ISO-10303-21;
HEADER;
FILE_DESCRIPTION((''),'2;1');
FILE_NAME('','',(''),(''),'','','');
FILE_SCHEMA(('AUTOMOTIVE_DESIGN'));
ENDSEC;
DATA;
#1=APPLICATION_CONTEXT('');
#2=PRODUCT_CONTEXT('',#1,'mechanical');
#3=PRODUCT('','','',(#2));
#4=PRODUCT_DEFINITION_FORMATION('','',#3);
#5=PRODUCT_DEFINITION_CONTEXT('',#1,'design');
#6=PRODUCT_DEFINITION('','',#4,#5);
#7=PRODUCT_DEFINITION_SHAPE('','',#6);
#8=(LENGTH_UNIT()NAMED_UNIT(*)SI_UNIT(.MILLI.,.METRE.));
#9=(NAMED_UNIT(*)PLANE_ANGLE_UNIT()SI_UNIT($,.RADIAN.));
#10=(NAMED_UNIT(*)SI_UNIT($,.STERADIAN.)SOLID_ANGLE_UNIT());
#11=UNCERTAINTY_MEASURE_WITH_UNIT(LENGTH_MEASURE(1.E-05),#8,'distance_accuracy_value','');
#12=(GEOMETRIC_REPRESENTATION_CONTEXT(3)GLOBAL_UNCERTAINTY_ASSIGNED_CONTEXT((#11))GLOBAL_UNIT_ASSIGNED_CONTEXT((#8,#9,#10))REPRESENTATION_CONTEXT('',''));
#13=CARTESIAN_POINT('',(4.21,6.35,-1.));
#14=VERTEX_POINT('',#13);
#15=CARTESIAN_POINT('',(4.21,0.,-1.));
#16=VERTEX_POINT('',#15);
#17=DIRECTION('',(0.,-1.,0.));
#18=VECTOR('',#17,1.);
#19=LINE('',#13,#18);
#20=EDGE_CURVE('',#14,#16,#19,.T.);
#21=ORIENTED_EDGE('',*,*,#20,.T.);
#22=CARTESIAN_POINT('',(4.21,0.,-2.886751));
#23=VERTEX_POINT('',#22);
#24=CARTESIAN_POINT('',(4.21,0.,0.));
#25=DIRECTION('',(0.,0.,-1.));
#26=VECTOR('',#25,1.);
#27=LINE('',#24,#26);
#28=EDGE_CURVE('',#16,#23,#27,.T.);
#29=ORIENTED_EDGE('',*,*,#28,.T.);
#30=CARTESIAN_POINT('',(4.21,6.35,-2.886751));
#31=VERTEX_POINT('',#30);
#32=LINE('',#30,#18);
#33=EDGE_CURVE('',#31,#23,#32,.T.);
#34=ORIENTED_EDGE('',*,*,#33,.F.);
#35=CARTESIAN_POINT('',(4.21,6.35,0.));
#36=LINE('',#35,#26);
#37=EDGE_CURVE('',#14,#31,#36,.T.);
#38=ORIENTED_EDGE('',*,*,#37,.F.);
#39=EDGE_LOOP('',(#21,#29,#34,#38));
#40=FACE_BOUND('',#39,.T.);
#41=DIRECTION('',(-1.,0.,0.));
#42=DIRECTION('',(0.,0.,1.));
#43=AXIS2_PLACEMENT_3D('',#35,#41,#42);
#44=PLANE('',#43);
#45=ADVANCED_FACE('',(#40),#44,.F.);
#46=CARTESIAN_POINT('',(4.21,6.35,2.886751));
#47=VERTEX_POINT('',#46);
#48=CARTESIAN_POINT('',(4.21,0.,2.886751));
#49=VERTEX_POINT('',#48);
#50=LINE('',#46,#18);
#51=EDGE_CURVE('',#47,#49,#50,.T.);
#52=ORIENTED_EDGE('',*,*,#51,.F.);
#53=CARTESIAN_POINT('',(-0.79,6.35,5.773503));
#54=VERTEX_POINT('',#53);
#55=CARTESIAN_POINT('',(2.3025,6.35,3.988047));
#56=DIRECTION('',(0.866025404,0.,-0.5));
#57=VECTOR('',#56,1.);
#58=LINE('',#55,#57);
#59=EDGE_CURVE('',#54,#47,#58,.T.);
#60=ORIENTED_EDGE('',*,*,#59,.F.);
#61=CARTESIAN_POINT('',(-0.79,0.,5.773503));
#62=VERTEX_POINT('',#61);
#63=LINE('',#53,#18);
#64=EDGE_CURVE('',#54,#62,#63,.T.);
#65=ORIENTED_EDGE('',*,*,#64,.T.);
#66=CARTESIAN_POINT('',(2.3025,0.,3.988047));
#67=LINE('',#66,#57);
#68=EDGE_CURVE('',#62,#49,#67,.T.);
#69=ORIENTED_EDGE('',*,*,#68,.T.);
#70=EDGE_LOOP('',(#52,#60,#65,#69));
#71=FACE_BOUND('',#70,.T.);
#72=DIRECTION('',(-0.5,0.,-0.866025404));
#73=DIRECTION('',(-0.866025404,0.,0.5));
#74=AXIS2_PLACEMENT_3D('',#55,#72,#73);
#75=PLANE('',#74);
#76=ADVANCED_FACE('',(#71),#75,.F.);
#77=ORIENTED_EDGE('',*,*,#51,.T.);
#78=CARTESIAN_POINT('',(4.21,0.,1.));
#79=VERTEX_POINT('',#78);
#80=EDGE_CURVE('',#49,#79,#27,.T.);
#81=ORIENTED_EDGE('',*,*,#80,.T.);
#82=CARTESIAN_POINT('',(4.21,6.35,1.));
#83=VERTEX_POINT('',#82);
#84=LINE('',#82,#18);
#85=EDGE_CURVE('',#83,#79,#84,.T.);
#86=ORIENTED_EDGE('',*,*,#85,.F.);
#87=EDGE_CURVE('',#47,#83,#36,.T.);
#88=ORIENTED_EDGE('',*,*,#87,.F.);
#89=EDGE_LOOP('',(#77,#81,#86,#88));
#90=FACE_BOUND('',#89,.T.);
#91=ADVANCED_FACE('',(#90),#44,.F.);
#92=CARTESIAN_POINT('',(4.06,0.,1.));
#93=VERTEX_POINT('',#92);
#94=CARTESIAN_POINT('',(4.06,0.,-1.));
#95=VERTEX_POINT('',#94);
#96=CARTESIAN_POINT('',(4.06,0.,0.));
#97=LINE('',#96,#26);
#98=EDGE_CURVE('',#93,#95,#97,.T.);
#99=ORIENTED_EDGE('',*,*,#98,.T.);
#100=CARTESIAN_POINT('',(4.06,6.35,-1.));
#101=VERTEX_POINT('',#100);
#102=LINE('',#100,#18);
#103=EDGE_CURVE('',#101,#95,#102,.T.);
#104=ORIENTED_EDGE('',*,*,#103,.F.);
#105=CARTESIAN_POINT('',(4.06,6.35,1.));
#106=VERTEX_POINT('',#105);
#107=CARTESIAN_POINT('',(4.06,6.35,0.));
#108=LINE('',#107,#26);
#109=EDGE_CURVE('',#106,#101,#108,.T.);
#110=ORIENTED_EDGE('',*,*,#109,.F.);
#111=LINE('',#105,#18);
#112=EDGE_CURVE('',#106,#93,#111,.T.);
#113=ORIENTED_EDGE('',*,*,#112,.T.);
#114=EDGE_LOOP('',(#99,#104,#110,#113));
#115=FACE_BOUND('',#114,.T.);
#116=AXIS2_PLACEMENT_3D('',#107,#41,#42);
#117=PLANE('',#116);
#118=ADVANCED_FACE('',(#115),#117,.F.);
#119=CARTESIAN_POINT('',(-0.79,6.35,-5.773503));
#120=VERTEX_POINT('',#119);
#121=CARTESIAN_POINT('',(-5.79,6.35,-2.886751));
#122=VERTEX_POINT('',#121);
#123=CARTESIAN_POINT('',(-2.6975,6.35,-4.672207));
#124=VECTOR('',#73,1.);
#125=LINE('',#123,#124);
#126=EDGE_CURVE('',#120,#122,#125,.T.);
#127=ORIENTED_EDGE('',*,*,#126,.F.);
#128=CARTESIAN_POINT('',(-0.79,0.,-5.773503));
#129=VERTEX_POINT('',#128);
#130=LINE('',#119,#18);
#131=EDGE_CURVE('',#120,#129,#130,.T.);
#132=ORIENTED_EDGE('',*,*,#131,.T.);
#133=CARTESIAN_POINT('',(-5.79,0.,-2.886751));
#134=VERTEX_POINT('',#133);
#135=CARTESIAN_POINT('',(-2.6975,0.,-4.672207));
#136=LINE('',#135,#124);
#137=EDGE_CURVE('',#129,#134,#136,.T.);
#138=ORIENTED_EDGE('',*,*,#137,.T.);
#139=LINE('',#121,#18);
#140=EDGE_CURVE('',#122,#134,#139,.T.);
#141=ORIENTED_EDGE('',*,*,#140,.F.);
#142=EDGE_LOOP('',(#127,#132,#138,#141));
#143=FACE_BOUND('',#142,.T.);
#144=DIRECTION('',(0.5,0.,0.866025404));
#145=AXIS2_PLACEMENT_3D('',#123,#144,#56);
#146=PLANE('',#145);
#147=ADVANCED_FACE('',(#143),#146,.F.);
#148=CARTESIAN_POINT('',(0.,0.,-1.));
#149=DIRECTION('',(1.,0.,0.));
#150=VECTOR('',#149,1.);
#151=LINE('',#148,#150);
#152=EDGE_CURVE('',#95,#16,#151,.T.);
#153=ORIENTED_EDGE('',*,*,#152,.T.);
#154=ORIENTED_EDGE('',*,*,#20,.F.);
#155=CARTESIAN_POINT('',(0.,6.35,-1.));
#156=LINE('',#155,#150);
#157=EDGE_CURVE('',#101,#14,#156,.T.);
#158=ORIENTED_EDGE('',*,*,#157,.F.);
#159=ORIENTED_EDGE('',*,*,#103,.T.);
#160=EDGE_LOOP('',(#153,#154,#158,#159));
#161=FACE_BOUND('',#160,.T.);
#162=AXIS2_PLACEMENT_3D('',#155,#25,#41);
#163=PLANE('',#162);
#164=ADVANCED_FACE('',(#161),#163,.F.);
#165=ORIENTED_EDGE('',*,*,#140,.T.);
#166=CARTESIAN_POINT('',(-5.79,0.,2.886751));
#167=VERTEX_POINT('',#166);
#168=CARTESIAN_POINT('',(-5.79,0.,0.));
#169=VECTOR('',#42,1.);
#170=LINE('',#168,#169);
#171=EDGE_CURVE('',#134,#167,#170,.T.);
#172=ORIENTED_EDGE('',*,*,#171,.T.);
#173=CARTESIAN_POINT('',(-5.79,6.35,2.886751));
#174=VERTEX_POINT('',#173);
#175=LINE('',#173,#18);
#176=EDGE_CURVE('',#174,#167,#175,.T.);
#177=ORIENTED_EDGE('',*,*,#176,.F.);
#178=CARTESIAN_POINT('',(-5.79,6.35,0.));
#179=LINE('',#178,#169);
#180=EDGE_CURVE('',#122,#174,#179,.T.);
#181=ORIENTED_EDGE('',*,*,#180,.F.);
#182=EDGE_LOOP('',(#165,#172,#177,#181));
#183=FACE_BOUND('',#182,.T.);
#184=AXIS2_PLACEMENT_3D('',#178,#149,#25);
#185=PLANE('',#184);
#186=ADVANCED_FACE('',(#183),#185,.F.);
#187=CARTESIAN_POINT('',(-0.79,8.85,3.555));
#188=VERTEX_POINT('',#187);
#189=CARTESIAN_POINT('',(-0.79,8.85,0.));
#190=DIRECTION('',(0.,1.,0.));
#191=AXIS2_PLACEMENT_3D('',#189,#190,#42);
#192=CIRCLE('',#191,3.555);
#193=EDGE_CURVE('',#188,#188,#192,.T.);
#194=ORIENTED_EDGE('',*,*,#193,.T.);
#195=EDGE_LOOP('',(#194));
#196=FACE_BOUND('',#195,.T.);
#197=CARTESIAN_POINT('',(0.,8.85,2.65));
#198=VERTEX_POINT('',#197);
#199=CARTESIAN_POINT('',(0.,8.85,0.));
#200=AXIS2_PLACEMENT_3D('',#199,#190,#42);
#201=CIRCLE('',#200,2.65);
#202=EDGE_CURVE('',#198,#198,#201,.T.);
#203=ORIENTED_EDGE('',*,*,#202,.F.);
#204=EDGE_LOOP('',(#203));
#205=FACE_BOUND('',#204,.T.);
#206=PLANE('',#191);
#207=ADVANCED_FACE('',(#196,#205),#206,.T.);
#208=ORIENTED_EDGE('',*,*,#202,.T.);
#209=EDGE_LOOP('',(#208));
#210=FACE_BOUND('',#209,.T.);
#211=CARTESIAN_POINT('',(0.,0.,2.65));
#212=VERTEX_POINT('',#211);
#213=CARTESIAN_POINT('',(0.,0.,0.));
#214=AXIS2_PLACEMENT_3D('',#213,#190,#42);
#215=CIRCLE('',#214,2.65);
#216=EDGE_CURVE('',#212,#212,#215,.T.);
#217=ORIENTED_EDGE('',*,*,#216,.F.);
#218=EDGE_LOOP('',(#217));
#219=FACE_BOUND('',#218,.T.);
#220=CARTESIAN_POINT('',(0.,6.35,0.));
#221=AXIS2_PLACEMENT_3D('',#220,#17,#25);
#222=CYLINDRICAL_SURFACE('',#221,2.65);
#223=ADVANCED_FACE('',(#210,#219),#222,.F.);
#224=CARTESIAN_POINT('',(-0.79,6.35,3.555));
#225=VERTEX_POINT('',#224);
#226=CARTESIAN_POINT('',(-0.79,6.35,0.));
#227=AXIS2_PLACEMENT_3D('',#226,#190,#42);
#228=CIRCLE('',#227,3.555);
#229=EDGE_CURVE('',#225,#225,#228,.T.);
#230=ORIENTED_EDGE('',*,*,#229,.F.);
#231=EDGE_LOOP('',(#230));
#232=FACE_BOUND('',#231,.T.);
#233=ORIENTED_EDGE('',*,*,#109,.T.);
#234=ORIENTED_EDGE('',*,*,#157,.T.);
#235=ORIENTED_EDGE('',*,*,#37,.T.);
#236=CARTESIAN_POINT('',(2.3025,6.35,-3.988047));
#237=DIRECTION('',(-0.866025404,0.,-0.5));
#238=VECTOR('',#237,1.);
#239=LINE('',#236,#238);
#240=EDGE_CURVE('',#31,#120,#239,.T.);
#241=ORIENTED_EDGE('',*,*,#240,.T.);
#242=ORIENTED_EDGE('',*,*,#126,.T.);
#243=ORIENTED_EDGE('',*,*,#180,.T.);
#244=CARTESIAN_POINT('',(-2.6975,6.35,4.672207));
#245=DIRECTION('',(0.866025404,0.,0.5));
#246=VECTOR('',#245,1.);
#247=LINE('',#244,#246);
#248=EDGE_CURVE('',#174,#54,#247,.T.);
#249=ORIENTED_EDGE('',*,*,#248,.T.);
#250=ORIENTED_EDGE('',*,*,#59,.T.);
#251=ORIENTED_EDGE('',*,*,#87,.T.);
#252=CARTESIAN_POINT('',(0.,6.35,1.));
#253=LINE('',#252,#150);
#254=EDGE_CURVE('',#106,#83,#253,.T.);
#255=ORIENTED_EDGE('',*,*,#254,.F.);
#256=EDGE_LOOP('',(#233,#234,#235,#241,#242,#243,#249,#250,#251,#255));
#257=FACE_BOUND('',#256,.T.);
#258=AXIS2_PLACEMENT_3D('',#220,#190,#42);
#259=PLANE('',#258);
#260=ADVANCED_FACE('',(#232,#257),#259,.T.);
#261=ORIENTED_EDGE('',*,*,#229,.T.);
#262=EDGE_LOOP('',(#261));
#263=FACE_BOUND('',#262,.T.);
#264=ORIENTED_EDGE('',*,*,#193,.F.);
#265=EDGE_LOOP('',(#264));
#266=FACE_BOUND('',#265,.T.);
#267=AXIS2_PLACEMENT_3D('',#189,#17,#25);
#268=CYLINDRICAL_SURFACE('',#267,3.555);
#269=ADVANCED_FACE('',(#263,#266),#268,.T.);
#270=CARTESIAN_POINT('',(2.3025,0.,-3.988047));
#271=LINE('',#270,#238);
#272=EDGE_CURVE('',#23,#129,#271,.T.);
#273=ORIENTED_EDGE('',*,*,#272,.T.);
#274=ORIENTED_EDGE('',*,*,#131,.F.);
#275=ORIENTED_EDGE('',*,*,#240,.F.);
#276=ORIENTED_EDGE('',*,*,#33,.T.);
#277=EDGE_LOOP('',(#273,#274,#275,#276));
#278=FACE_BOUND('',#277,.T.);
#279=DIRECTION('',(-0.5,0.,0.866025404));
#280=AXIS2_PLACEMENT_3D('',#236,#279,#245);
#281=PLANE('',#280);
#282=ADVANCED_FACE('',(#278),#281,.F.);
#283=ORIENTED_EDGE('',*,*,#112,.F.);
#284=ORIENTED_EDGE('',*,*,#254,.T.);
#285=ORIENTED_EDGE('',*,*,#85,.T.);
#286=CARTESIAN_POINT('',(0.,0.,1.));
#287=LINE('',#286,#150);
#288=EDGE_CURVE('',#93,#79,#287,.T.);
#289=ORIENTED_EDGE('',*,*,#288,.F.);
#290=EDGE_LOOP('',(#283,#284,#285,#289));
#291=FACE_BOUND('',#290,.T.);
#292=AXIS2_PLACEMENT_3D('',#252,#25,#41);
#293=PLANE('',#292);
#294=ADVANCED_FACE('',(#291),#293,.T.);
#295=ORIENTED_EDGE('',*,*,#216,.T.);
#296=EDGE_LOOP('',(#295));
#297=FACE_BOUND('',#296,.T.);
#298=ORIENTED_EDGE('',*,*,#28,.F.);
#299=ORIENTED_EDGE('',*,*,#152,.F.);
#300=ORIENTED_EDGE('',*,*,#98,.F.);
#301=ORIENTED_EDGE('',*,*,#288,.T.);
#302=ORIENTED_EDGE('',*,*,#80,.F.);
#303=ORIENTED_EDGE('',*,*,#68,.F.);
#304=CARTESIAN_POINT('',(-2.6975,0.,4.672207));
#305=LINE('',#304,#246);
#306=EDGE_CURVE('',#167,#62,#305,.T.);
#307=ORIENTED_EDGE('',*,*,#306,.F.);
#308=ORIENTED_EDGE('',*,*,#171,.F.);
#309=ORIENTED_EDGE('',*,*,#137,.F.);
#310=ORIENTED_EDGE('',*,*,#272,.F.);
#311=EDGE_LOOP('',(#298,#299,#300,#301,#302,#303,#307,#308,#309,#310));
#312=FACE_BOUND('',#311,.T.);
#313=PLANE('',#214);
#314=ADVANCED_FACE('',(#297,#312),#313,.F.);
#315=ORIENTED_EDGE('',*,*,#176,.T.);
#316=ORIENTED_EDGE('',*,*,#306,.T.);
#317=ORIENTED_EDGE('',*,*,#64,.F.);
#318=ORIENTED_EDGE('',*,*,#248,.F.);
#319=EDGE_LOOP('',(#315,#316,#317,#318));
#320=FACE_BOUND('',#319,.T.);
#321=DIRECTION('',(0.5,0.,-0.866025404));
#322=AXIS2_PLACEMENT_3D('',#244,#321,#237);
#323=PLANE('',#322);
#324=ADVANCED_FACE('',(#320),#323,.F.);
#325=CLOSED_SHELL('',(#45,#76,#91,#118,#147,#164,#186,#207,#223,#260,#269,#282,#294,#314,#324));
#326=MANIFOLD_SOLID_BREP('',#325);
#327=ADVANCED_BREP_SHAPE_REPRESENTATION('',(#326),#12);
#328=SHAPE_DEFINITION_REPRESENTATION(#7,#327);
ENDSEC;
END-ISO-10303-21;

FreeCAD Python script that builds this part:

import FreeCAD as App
import Part
import Sketcher
from FreeCAD import Vector
Q = App.Units.Quantity

doc = App.newDocument("Part")
body = doc.addObject("PartDesign::Body", "Body")

sketch1 = body.newObject("Sketcher::SketchObject", "Sketch")
sketch1.AttachmentSupport = (doc.getObject("XZ_Plane"), [""])
sketch1.MapMode = "FlatFace"
sketch1.addGeometry([
    Part.LineSegment(Vector(4.21, -2.89, 0), Vector(-0.79, -5.77, 0)),
    Part.LineSegment(Vector(-0.79, -5.77, 0), Vector(-5.79, -2.89, 0)),
    Part.LineSegment(Vector(-5.79, -2.89, 0), Vector(-5.79, 2.89, 0)),
    Part.LineSegment(Vector(-5.79, 2.89, 0), Vector(-0.79, 5.77, 0)),
    Part.LineSegment(Vector(-0.79, 5.77, 0), Vector(4.21, 2.89, 0)),
    Part.LineSegment(Vector(4.21, 2.89, 0), Vector(4.21, 1, 0)),
    Part.LineSegment(Vector(4.21, 1, 0), Vector(4.06, 1, 0)),
    Part.LineSegment(Vector(4.06, 1, 0), Vector(4.06, -1, 0)),
    Part.LineSegment(Vector(4.06, -1, 0), Vector(4.21, -1, 0)),
    Part.LineSegment(Vector(4.21, -1, 0), Vector(4.21, -2.89, 0)),
    Part.Circle(Vector(0, 0, 0), Vector(0, 0, 1), 2.65),
], False)
sketch1.addConstraint([
    Sketcher.Constraint("Coincident", 0, 2, 1, 1),
    Sketcher.Constraint("Coincident", 1, 2, 2, 1),
    Sketcher.Constraint("Coincident", 2, 2, 3, 1),
    Sketcher.Constraint("Coincident", 3, 2, 4, 1),
    Sketcher.Constraint("Coincident", 4, 2, 5, 1),
    Sketcher.Constraint("Coincident", 5, 2, 6, 1),
    Sketcher.Constraint("Coincident", 6, 2, 7, 1),
    Sketcher.Constraint("Coincident", 7, 2, 8, 1),
    Sketcher.Constraint("Coincident", 8, 2, 9, 1),
    Sketcher.Constraint("Coincident", 9, 2, 0, 1),
    Sketcher.Constraint("Vertical", 2),
    Sketcher.Constraint("Vertical", 5),
    Sketcher.Constraint("Horizontal", 6),
    Sketcher.Constraint("Vertical", 7),
    Sketcher.Constraint("Horizontal", 8),
    Sketcher.Constraint("Vertical", 9),
    Sketcher.Constraint("Coincident", 10, 3, -1, 1),
    Sketcher.Constraint("Symmetric", 0, 2, 3, 2, -1),
    Sketcher.Constraint("Symmetric", 5, 2, 8, 2, -1),
    Sketcher.Constraint("Parallel", 0, 3),
    Sketcher.Constraint("Parallel", 1, 4),
    Sketcher.Constraint("Horizontal", 2, 2, 4, 2),
    Sketcher.Constraint("Horizontal", 1, 2, 9, 2),
    Sketcher.Constraint("Diameter", 10, Q("5.3 mm")),
    Sketcher.Constraint("DistanceY", 7, 2, 7, 1, Q("2 mm")),
    Sketcher.Constraint("Angle", 0, Q("-150 deg")),
    Sketcher.Constraint("DistanceX", 1, 2, 0, 2, Q("5 mm")),
    Sketcher.Constraint("DistanceX", 6, 2, 6, 1, Q("0.15 mm")),
    Sketcher.Constraint("DistanceX", 0, 2, -1, 1, Q("0.79 mm")),
    Sketcher.Constraint("DistanceY", 5, 2, 5, 1, Q("1.886751 mm")),
])
pad1 = body.newObject("PartDesign::Pad", "Pad")
pad1.Profile = sketch1
pad1.Length = 6.35
pad1.Reversed = True

sketch2 = body.newObject("Sketcher::SketchObject", "Sketch001")
sketch2.AttachmentSupport = (doc.getObject("XZ_Plane"), [""])
sketch2.MapMode = "FlatFace"
sketch2.AttachmentOffset = App.Placement(Vector(0, 0, -6.35), App.Rotation())
sketch2.addGeometry([
    Part.Circle(Vector(-0.8, 0, 0), Vector(0, 0, 1), 3.6),
    Part.Circle(Vector(0, 0, 0), Vector(0, 0, 1), 2.6),
], False)
sketch2.addConstraint([
    Sketcher.Constraint("Coincident", 1, 3, -1, 1),
    Sketcher.Constraint("PointOnObject", 0, 3, -1),
    Sketcher.Constraint("Diameter", 1, Q("5.3 mm")),
    Sketcher.Constraint("Diameter", 0, Q("7.11 mm")),
    Sketcher.Constraint("DistanceX", 0, 3, -1, 1, Q("0.79 mm")),
])
pad2 = body.newObject("PartDesign::Pad", "Pad001")
pad2.Profile = sketch2
pad2.Length = 2.5
pad2.Reversed = True

doc.recompute()
